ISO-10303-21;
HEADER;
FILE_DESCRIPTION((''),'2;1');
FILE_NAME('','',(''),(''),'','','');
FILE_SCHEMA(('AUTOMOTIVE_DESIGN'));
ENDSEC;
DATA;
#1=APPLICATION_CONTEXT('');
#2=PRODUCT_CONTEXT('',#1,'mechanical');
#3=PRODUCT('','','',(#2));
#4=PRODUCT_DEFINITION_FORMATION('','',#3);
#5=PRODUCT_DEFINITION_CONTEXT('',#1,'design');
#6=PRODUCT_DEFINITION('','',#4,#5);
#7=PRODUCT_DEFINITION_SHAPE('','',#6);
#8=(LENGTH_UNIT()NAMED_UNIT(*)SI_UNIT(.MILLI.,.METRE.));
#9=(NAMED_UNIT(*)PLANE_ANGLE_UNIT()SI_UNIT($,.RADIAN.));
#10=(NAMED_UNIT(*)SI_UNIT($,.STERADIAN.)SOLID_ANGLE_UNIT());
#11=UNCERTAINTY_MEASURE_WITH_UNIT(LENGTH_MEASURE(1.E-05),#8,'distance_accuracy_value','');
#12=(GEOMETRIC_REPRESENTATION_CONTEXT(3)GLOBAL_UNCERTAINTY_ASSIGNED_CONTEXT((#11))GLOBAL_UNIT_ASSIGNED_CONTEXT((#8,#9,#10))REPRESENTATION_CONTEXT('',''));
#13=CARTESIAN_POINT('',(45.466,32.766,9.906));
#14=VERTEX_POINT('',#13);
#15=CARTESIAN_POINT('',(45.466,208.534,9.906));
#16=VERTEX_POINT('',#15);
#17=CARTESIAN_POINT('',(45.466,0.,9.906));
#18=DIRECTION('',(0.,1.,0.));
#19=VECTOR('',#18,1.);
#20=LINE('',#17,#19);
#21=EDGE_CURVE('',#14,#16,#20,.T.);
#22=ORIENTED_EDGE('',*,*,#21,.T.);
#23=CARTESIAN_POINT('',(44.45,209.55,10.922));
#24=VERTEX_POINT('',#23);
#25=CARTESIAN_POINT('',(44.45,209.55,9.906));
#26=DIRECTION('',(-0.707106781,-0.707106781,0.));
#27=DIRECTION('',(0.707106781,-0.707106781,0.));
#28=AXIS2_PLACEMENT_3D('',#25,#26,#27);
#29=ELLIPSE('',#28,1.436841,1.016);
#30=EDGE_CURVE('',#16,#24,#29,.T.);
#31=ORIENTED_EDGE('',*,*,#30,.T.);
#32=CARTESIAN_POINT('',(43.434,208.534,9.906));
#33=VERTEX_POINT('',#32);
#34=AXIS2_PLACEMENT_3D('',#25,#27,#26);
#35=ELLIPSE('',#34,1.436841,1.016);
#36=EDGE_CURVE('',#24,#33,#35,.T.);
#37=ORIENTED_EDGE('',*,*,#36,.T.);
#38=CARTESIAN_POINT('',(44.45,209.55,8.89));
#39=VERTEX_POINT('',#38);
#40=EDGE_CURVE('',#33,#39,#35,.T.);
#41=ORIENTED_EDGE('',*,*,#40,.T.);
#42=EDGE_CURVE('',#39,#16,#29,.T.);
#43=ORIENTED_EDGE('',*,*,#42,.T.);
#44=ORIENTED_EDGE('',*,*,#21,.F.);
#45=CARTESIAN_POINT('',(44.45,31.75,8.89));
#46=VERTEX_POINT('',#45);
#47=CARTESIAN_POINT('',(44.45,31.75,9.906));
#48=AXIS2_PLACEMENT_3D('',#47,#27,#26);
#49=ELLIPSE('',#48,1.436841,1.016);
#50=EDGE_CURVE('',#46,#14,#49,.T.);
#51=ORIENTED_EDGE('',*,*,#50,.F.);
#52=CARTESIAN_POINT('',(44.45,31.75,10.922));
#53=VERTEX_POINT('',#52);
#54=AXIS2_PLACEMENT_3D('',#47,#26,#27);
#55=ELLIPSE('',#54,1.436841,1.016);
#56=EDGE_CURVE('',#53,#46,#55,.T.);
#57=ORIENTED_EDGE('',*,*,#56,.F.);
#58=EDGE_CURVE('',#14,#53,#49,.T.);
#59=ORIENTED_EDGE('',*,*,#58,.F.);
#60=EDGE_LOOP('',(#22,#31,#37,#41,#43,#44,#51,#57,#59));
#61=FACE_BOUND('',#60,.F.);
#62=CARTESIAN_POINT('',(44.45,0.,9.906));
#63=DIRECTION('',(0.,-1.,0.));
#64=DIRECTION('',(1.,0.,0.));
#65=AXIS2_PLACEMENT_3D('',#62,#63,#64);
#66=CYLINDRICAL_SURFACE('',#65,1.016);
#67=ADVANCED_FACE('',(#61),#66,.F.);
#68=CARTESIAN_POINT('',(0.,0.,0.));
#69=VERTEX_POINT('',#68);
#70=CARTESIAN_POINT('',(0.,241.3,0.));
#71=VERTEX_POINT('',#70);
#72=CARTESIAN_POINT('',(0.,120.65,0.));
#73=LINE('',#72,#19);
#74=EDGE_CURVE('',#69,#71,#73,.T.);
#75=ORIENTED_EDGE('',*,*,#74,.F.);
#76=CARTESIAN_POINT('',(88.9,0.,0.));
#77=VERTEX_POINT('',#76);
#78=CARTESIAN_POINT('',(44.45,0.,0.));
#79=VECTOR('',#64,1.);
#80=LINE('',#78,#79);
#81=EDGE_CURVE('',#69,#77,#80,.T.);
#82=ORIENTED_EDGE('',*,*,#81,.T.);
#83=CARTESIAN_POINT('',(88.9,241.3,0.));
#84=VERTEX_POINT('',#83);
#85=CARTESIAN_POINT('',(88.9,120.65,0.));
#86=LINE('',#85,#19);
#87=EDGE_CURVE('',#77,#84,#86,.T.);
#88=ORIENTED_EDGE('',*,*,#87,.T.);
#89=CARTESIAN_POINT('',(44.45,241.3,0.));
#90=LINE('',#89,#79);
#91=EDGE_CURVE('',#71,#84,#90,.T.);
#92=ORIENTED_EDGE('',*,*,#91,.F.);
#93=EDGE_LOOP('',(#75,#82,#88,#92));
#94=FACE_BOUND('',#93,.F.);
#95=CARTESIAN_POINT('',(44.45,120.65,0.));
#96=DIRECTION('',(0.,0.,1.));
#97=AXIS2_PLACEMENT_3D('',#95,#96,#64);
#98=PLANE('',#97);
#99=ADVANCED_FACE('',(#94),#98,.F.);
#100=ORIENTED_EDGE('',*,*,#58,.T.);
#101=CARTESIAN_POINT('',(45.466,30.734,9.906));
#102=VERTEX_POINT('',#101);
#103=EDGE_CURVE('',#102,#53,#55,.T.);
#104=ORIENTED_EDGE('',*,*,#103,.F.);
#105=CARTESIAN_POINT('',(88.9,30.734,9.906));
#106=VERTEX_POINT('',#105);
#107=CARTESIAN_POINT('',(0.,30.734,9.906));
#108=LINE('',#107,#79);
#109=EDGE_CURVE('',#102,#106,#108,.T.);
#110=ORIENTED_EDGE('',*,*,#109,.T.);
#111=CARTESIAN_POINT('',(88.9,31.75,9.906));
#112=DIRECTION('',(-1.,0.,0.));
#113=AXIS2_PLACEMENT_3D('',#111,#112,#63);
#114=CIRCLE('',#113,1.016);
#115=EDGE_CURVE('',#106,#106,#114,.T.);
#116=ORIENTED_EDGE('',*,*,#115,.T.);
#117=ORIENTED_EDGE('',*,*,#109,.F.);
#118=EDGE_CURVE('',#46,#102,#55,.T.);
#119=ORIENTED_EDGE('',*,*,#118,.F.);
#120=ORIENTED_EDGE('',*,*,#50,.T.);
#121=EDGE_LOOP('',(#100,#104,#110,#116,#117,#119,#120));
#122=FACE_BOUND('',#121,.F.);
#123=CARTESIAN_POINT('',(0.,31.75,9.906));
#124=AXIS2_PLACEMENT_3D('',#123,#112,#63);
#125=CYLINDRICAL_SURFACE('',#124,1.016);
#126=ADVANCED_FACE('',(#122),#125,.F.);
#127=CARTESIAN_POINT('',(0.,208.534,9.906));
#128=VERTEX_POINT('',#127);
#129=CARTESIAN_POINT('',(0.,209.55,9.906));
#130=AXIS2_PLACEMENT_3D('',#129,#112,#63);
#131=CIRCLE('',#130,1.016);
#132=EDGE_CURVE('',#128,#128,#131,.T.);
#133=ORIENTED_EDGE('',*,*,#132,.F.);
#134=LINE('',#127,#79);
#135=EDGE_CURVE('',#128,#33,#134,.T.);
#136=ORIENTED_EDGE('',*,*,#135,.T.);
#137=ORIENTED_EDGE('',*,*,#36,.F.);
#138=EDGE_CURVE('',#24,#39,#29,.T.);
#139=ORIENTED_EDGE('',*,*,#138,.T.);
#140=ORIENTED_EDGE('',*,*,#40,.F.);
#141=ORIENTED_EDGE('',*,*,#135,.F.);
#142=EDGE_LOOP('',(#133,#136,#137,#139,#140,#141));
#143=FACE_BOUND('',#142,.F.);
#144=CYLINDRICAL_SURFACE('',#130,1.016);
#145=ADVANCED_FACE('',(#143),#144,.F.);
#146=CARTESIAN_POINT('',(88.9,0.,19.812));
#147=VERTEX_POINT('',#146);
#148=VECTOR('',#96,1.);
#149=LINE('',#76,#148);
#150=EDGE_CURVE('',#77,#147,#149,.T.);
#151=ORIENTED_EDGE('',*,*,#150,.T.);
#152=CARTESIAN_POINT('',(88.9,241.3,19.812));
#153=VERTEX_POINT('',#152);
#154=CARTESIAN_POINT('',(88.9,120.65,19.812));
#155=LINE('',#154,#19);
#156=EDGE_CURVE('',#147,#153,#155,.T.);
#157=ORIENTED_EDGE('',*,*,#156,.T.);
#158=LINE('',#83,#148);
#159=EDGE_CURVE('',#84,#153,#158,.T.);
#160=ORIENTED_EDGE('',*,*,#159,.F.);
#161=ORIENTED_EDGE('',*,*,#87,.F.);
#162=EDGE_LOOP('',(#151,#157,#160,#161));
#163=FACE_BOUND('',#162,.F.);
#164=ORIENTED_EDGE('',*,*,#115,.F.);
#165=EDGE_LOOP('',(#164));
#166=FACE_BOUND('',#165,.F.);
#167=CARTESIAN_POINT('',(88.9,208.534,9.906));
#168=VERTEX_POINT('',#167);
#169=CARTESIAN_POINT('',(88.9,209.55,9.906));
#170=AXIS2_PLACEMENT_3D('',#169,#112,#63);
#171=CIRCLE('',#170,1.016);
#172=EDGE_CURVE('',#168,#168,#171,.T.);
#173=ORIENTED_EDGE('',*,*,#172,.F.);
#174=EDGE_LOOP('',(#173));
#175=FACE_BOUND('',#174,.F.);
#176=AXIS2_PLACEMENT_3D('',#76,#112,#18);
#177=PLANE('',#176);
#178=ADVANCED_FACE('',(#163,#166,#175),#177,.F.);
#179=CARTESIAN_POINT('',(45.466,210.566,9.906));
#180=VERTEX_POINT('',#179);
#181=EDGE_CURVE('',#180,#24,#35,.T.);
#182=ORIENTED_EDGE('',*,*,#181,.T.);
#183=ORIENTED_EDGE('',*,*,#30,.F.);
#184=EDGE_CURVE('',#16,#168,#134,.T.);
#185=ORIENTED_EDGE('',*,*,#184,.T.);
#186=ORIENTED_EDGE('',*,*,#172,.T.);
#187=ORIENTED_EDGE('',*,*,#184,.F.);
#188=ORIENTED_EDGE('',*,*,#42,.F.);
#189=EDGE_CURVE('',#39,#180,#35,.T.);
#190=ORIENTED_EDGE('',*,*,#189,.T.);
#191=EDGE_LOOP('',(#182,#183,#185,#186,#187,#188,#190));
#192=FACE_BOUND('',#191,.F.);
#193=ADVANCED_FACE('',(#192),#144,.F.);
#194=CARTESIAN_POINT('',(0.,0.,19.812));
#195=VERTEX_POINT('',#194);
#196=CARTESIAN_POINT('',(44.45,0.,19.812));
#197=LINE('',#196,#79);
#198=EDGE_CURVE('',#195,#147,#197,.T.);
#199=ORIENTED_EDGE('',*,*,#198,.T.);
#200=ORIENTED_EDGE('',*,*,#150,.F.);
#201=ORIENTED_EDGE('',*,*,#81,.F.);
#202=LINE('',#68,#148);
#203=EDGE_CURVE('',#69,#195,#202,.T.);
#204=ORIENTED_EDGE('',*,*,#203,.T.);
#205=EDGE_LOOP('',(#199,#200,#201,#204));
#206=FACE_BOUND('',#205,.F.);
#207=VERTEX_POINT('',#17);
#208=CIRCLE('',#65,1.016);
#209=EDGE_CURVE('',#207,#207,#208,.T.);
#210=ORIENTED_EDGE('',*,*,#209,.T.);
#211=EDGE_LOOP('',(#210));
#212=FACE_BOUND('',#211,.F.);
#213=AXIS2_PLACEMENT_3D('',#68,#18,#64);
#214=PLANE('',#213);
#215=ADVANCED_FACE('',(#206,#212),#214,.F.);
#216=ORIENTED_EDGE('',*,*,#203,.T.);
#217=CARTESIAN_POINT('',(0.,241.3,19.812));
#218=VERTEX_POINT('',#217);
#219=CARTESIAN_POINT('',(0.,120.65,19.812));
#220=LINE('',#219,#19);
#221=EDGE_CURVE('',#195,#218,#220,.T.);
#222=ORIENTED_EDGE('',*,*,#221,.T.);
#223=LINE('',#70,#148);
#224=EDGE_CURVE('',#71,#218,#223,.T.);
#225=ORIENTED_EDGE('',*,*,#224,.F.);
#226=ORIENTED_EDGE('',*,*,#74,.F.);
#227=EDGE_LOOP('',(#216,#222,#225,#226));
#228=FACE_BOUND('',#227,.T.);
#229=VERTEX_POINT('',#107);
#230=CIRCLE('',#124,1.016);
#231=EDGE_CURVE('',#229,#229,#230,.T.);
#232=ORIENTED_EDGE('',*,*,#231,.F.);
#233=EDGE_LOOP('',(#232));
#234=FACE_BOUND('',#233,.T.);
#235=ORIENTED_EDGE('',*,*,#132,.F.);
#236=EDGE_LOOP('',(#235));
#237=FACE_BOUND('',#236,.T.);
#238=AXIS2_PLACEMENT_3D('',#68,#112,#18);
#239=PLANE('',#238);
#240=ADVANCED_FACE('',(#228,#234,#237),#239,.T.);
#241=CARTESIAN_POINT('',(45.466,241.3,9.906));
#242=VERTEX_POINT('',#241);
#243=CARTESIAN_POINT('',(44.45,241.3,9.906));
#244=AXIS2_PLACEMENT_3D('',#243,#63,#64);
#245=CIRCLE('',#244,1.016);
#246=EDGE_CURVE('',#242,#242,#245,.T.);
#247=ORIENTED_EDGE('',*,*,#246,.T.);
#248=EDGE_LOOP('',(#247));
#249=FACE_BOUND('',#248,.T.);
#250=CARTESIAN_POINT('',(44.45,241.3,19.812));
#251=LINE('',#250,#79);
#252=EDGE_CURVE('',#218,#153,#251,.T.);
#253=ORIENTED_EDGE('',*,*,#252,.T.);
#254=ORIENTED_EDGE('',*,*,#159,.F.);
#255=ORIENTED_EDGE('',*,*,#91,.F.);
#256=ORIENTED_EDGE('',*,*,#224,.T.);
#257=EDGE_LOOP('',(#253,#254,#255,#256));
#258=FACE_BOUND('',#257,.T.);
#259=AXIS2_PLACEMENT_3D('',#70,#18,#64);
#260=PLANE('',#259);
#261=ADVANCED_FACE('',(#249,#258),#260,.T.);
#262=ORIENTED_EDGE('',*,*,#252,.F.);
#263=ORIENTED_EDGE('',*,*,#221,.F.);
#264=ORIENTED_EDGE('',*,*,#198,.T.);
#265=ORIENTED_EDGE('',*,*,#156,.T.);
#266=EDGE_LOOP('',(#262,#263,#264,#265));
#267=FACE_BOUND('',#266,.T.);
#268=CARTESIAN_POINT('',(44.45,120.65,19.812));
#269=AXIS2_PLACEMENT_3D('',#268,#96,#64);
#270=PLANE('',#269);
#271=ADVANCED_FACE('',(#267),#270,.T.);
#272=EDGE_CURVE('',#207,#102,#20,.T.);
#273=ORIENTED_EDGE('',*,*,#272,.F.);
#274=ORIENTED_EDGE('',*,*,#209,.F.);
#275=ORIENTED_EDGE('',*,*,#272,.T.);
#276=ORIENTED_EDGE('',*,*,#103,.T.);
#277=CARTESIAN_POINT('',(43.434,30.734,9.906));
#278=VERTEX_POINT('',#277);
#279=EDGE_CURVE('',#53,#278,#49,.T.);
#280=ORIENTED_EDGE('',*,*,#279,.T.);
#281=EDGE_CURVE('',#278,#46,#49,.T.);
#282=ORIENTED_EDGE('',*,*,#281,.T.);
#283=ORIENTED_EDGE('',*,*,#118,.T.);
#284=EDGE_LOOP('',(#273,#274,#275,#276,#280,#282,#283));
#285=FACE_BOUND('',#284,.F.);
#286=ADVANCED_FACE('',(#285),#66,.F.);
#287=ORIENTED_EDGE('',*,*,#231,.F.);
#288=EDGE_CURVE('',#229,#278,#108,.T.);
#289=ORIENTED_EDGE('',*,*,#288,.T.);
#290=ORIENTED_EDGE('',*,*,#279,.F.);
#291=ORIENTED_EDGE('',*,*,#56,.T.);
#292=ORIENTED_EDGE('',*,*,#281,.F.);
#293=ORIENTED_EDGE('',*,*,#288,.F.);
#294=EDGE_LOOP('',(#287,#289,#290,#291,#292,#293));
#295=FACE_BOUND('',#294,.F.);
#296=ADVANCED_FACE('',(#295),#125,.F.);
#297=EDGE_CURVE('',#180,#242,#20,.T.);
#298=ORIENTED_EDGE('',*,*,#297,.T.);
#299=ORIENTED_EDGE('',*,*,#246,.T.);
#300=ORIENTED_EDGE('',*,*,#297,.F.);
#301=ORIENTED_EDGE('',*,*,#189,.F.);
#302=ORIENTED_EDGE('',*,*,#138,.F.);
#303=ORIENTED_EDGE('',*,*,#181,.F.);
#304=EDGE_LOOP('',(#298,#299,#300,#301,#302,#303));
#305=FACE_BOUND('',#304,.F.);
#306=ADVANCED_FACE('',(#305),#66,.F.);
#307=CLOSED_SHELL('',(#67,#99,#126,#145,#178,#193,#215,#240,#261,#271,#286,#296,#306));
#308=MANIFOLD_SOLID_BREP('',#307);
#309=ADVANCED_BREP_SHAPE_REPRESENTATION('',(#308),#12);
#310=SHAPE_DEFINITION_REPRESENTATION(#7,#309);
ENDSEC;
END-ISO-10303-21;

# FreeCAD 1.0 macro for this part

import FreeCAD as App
import Part
import Sketcher
from FreeCAD import Vector
Q = App.Units.Quantity

doc = App.newDocument("Part")
body = doc.addObject("PartDesign::Body", "Body")

# Sketch on XY plane
sketch1 = doc.addObject("Sketcher::SketchObject", "Sketch")
body.addObject(sketch1)
sketch1.AttachmentSupport = (doc.XY_Plane, [""])
sketch1.MapMode = "FlatFace"
sketch1.addGeometry(Part.LineSegment(Vector(0, 241, 0), Vector(0, 0, 0)), False)
sketch1.addGeometry(Part.LineSegment(Vector(0, 0, 0), Vector(89, 0, 0)), False)
sketch1.addGeometry(Part.LineSegment(Vector(89, 0, 0), Vector(89, 241, 0)), False)
sketch1.addGeometry(Part.LineSegment(Vector(89, 241, 0), Vector(0, 241, 0)), False)
sketch1.addConstraint(Sketcher.Constraint("Coincident", 0, 2, 1, 1))
sketch1.addConstraint(Sketcher.Constraint("Coincident", 1, 2, 2, 1))
sketch1.addConstraint(Sketcher.Constraint("Coincident", 2, 2, 3, 1))
sketch1.addConstraint(Sketcher.Constraint("Coincident", 3, 2, 0, 1))
sketch1.addConstraint(Sketcher.Constraint("Vertical", 0))
sketch1.addConstraint(Sketcher.Constraint("Horizontal", 1))
sketch1.addConstraint(Sketcher.Constraint("Vertical", 2))
sketch1.addConstraint(Sketcher.Constraint("Horizontal", 3))
sketch1.addConstraint(Sketcher.Constraint("Coincident", 0, 2, -1, 1))
sketch1.addConstraint(Sketcher.Constraint("DistanceX", 1, 1, 1, 2, Q("3.5 in")))
sketch1.addConstraint(Sketcher.Constraint("DistanceY", 0, 2, 0, 1, Q("9.5 in")))
pad1 = doc.addObject("PartDesign::Pad", "Pad")
body.addObject(pad1)
pad1.Profile = sketch1
pad1.Length = Q("0.78 in")

# Sketch on XZ plane
sketch2 = doc.addObject("Sketcher::SketchObject", "Sketch001")
body.addObject(sketch2)
sketch2.AttachmentSupport = (doc.XZ_Plane, [""])
sketch2.MapMode = "FlatFace"
sketch2.addGeometry(Part.Circle(Vector(44.5, 9.9, 0), Vector(0, 0, 1), 1), False)
sketch2.addConstraint(Sketcher.Constraint("Diameter", 0, Q("0.08 in")))
sketch2.addConstraint(Sketcher.Constraint("DistanceX", -1, 1, 0, 3, Q("1.75 in")))
sketch2.addConstraint(Sketcher.Constraint("DistanceY", -1, 1, 0, 3, Q("0.39 in")))
pocket1 = doc.addObject("PartDesign::Pocket", "Pocket")
body.addObject(pocket1)
pocket1.Profile = sketch2
pocket1.Type = "ThroughAll"

# Sketch on YZ plane
sketch3 = doc.addObject("Sketcher::SketchObject", "Sketch002")
body.addObject(sketch3)
sketch3.AttachmentSupport = (doc.YZ_Plane, [""])
sketch3.MapMode = "FlatFace"
sketch3.addGeometry(Part.Circle(Vector(209.6, 9.9, 0), Vector(0, 0, 1), 1), False)
sketch3.addGeometry(Part.Circle(Vector(31.8, 9.9, 0), Vector(0, 0, 1), 1), False)
sketch3.addConstraint(Sketcher.Constraint("Equal", 0, 1))
sketch3.addConstraint(Sketcher.Constraint("Horizontal", 0, 3, 1, 3))
sketch3.addConstraint(Sketcher.Constraint("Diameter", 0, Q("0.08 in")))
sketch3.addConstraint(Sketcher.Constraint("DistanceX", 1, 3, 0, 3, Q("7 in")))
sketch3.addConstraint(Sketcher.Constraint("DistanceX", -1, 1, 0, 3, Q("8.25 in")))
sketch3.addConstraint(Sketcher.Constraint("DistanceY", -1, 1, 0, 3, Q("0.39 in")))
pocket2 = doc.addObject("PartDesign::Pocket", "Pocket001")
body.addObject(pocket2)
pocket2.Profile = sketch3
pocket2.Type = "ThroughAll"
pocket2.Reversed = True

doc.recompute()
